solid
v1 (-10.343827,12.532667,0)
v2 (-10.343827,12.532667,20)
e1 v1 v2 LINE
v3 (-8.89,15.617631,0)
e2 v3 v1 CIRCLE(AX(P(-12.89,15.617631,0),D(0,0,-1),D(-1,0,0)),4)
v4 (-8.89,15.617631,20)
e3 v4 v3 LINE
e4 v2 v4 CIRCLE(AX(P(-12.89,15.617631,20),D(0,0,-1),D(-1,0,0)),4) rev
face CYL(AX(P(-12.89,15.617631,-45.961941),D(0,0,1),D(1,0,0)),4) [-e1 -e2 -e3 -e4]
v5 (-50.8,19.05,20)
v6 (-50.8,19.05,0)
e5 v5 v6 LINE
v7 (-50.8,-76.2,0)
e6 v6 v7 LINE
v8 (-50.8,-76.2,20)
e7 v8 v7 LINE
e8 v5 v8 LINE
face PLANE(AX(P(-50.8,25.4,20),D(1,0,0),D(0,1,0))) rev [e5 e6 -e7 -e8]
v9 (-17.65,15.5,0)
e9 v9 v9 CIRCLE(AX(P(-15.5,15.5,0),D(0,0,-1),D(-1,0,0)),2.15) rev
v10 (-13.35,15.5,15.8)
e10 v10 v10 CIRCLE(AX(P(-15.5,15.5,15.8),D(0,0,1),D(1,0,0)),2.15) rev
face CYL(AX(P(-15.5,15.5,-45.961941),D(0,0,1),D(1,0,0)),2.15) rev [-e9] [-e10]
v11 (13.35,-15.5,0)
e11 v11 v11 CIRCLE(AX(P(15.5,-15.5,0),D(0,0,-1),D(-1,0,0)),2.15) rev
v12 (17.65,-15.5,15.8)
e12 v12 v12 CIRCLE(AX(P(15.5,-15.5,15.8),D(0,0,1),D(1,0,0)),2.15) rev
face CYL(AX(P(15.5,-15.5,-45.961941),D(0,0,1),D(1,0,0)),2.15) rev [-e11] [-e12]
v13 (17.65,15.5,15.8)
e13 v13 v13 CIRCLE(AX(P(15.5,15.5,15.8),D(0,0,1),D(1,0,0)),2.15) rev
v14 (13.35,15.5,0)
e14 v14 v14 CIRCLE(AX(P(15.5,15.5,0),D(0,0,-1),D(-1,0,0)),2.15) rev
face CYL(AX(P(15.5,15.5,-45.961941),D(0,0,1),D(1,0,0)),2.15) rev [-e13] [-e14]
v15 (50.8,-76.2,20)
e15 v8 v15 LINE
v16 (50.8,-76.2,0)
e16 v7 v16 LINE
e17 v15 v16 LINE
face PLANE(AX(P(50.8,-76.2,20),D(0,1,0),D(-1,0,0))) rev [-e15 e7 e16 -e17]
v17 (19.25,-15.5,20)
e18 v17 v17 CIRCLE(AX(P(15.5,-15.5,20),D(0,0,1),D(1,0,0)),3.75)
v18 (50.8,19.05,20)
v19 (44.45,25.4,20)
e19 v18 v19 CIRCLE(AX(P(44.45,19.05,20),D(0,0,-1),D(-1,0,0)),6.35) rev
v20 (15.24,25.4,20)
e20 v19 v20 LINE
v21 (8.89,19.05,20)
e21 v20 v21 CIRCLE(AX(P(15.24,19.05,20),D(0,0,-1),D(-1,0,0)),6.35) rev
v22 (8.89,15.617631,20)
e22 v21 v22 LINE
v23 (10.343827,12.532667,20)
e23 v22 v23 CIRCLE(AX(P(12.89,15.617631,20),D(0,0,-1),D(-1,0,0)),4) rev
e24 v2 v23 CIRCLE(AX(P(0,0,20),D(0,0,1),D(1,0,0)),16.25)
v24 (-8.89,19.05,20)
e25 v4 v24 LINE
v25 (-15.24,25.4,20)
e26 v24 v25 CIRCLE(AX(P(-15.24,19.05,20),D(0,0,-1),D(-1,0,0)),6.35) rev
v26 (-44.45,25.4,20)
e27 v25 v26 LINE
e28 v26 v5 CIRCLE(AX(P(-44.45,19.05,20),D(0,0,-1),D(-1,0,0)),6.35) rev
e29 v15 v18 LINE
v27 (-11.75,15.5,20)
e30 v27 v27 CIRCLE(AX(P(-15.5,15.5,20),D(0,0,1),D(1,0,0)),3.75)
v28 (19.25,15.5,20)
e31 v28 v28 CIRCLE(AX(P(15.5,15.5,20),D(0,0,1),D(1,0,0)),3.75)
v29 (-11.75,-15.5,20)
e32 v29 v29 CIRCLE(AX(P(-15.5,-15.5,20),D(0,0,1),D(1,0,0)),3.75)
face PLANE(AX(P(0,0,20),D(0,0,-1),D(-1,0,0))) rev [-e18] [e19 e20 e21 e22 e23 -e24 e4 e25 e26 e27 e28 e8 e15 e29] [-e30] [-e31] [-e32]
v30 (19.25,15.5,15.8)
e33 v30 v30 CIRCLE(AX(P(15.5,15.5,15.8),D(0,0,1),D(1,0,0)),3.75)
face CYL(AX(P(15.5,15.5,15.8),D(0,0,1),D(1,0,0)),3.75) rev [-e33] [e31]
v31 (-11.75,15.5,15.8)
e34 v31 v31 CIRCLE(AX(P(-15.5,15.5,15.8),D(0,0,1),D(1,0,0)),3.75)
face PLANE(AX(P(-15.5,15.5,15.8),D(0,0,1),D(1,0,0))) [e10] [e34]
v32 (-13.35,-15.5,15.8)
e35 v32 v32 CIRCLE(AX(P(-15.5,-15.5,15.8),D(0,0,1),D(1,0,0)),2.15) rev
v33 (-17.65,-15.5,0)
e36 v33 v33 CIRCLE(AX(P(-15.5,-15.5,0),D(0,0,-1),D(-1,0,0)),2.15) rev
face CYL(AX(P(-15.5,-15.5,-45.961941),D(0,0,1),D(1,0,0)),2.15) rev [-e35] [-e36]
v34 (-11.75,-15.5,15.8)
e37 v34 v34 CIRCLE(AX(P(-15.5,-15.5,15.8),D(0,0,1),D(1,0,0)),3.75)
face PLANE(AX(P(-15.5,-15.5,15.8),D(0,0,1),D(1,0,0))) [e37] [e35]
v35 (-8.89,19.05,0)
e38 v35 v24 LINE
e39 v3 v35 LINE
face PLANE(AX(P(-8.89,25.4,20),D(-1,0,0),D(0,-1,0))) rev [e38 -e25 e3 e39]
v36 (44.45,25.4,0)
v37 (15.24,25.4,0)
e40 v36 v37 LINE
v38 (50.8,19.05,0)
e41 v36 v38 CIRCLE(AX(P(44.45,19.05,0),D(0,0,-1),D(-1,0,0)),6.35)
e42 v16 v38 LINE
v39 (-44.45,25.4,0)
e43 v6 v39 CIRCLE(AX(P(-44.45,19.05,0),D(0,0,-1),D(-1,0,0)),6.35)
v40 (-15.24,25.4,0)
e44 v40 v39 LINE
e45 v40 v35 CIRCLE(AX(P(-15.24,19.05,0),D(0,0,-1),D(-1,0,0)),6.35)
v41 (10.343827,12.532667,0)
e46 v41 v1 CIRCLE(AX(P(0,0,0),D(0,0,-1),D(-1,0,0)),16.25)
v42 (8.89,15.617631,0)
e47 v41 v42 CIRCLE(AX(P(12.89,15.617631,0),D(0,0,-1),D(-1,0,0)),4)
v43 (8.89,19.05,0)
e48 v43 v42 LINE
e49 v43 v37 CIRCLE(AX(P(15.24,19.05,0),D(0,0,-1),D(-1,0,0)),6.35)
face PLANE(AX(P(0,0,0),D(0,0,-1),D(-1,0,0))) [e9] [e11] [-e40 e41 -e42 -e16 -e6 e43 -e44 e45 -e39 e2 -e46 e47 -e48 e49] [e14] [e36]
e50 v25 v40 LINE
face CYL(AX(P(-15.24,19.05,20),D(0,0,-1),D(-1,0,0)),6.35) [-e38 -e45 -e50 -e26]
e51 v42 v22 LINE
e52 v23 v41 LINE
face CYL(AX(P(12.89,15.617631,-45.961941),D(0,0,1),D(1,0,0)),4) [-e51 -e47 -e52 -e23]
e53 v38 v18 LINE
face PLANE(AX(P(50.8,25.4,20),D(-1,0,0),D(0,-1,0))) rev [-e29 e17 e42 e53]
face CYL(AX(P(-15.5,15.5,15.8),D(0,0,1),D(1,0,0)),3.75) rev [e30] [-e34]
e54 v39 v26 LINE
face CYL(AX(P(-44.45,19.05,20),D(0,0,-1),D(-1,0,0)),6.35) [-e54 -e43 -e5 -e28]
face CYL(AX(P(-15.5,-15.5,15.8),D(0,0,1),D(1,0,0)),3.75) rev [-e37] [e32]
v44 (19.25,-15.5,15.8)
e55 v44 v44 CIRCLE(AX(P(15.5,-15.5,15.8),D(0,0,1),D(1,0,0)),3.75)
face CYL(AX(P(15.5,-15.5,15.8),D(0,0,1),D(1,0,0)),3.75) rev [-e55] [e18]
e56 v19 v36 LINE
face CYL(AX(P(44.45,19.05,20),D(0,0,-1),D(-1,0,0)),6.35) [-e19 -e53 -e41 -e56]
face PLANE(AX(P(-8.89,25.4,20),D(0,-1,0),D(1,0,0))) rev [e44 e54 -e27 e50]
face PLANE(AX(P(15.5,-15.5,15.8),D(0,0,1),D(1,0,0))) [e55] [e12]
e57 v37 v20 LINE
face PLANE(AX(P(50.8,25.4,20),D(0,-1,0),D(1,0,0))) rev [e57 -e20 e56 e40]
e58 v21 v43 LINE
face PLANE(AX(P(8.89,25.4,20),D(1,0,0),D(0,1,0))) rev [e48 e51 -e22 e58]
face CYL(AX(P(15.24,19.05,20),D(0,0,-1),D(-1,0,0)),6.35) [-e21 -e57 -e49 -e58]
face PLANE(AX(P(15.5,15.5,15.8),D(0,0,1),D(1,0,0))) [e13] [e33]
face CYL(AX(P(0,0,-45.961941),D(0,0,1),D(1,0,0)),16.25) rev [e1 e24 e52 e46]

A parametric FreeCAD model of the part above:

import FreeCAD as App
import Part
import Sketcher


def edges_at(feature, points):
    """Names of the edges that pass closest to the given points."""
    edges = feature.Shape.Edges
    near = lambda p: min(range(len(edges)), key=lambda i: edges[i].distToShape(Part.Vertex(*p))[0])
    return sorted({f"Edge{near(p) + 1}" for p in points})

doc = App.newDocument("Part")
body = doc.addObject("PartDesign::Body", "Body")

# Sketch on XY plane
sketch1 = body.newObject("Sketcher::SketchObject", "Sketch")
sketch1.AttachmentSupport = (doc.getObject("XY_Plane"), [""])
sketch1.MapMode = "FlatFace"
sketch1.addGeometry(Part.LineSegment(App.Vector(51, 25, 0), App.Vector(9, 25, 0)), False)
sketch1.addGeometry(Part.LineSegment(App.Vector(9, 25, 0), App.Vector(9, 13, 0)), False)
sketch1.addGeometry(Part.LineSegment(App.Vector(9, 13, 0), App.Vector(-9, 13, 0)), False)
sketch1.addGeometry(Part.LineSegment(App.Vector(-9, 13, 0), App.Vector(-9, 25, 0)), False)
sketch1.addGeometry(Part.LineSegment(App.Vector(-9, 25, 0), App.Vector(-51, 25, 0)), False)
sketch1.addGeometry(Part.LineSegment(App.Vector(-51, 25, 0), App.Vector(-51, -76, 0)), False)
sketch1.addGeometry(Part.LineSegment(App.Vector(-51, -76, 0), App.Vector(51, -76, 0)), False)
sketch1.addGeometry(Part.LineSegment(App.Vector(51, -76, 0), App.Vector(51, 25, 0)), False)
sketch1.addConstraint(Sketcher.Constraint("Coincident", 0, 2, 1, 1))
sketch1.addConstraint(Sketcher.Constraint("Coincident", 1, 2, 2, 1))
sketch1.addConstraint(Sketcher.Constraint("Coincident", 2, 2, 3, 1))
sketch1.addConstraint(Sketcher.Constraint("Coincident", 3, 2, 4, 1))
sketch1.addConstraint(Sketcher.Constraint("Coincident", 4, 2, 5, 1))
sketch1.addConstraint(Sketcher.Constraint("Coincident", 5, 2, 6, 1))
sketch1.addConstraint(Sketcher.Constraint("Coincident", 6, 2, 7, 1))
sketch1.addConstraint(Sketcher.Constraint("Coincident", 7, 2, 0, 1))
sketch1.addConstraint(Sketcher.Constraint("Horizontal", 0))
sketch1.addConstraint(Sketcher.Constraint("Vertical", 1))
sketch1.addConstraint(Sketcher.Constraint("Horizontal", 2))
sketch1.addConstraint(Sketcher.Constraint("Vertical", 3))
sketch1.addConstraint(Sketcher.Constraint("Horizontal", 4))
sketch1.addConstraint(Sketcher.Constraint("Vertical", 5))
sketch1.addConstraint(Sketcher.Constraint("Horizontal", 6))
sketch1.addConstraint(Sketcher.Constraint("Vertical", 7))
sketch1.addConstraint(Sketcher.Constraint("Symmetric", 0, 2, 3, 2, -2))
sketch1.addConstraint(Sketcher.Constraint("Equal", 0, 4))
sketch1.addConstraint(Sketcher.Constraint("Equal", 6, 5))
sketch1.addConstraint(Sketcher.Constraint("DistanceX", 6, 1, 6, 2, 101.6))
sketch1.addConstraint(Sketcher.Constraint("DistanceX", 0, 2, 0, 1, 41.91))
sketch1.addConstraint(Sketcher.Constraint("DistanceY", -1, 1, 0, 2, 25.4))
sketch1.addConstraint(Sketcher.Constraint("DistanceY", 1, 2, 1, 1, 12.097072))
pad1 = body.newObject("PartDesign::Pad", "Pad")
pad1.Profile = sketch1
pad1.Length = 20

# Sketch on XY plane
sketch2 = body.newObject("Sketcher::SketchObject", "Sketch001")
sketch2.AttachmentSupport = (doc.getObject("XY_Plane"), [""])
sketch2.MapMode = "FlatFace"
sketch2.AttachmentOffset = App.Placement(App.Vector(0, 0, 20), App.Rotation())
sketch2.addGeometry(Part.Circle(App.Vector(0, 0, 0), App.Vector(0, 0, 1), 16.2), False)
sketch2.addGeometry(Part.Circle(App.Vector(-15.5, -15.5, 0), App.Vector(0, 0, 1), 2.1), False)
sketch2.addGeometry(Part.Circle(App.Vector(-15.5, 15.5, 0), App.Vector(0, 0, 1), 2.1), False)
sketch2.addGeometry(Part.Circle(App.Vector(15.5, -15.5, 0), App.Vector(0, 0, 1), 2.1), False)
sketch2.addGeometry(Part.Circle(App.Vector(15.5, 15.5, 0), App.Vector(0, 0, 1), 2.1), False)
sketch2.addConstraint(Sketcher.Constraint("Coincident", 0, 3, -1, 1))
sketch2.addConstraint(Sketcher.Constraint("Equal", 1, 2))
sketch2.addConstraint(Sketcher.Constraint("Equal", 2, 3))
sketch2.addConstraint(Sketcher.Constraint("Equal", 3, 4))
sketch2.addConstraint(Sketcher.Constraint("Symmetric", 2, 3, 3, 3, -1, 1))
sketch2.addConstraint(Sketcher.Constraint("Symmetric", 1, 3, 4, 3, -1, 1))
sketch2.addConstraint(Sketcher.Constraint("Symmetric", 1, 3, 3, 3, -2))
sketch2.addConstraint(Sketcher.Constraint("Diameter", 0, 32.5))
sketch2.addConstraint(Sketcher.Constraint("Diameter", 1, 4.3))
sketch2.addConstraint(Sketcher.Constraint("DistanceY", 1, 3, 2, 3, 31.0))
sketch2.addConstraint(Sketcher.Constraint("DistanceX", 1, 3, 3, 3, 31.0))
pocket1 = body.newObject("PartDesign::Pocket", "Pocket")
pocket1.Profile = sketch2
pocket1.Length = 20

# Sketch on XY plane
sketch3 = body.newObject("Sketcher::SketchObject", "Sketch002")
sketch3.AttachmentSupport = (doc.getObject("XY_Plane"), [""])
sketch3.MapMode = "FlatFace"
sketch3.AttachmentOffset = App.Placement(App.Vector(0, 0, 20), App.Rotation())
sketch3.addGeometry(Part.Circle(App.Vector(-15.5, 15.5, 0), App.Vector(0, 0, 1), 3.8), False)
sketch3.addGeometry(Part.Circle(App.Vector(15.5, 15.5, 0), App.Vector(0, 0, 1), 3.8), False)
sketch3.addGeometry(Part.Circle(App.Vector(15.5, -15.5, 0), App.Vector(0, 0, 1), 3.8), False)
sketch3.addGeometry(Part.Circle(App.Vector(-15.5, -15.5, 0), App.Vector(0, 0, 1), 3.8), False)
sketch3.addConstraint(Sketcher.Constraint("Equal", 0, 1))
sketch3.addConstraint(Sketcher.Constraint("Equal", 1, 2))
sketch3.addConstraint(Sketcher.Constraint("Equal", 2, 3))
sketch3.addConstraint(Sketcher.Constraint("Symmetric", 0, 3, 2, 3, -1, 1))
sketch3.addConstraint(Sketcher.Constraint("Symmetric", 1, 3, 3, 3, -1, 1))
sketch3.addConstraint(Sketcher.Constraint("Symmetric", 0, 3, 1, 3, -2))
sketch3.addConstraint(Sketcher.Constraint("Diameter", 0, 7.5))
sketch3.addConstraint(Sketcher.Constraint("DistanceX", 0, 3, 1, 3, 31.0))
sketch3.addConstraint(Sketcher.Constraint("DistanceY", 2, 3, 1, 3, 31.0))
pocket2 = body.newObject("PartDesign::Pocket", "Pocket001")
pocket2.Profile = sketch3
pocket2.Length = 4.2
doc.recompute()

fillet = body.newObject("PartDesign::Fillet", "Fillet")
fillet.Base = (pocket2, edges_at(pocket2, [(8.89, 13.603, 10), (-8.89, 13.603, 10)]))
fillet.Radius = 4
doc.recompute()

fillet2 = body.newObject("PartDesign::Fillet", "Fillet001")
fillet2.Base = (fillet, edges_at(fillet, [
    (-50.8, 25.4, 10),
    (-8.89, 25.4, 10),
    (8.89, 25.4, 10),
    (50.8, 25.4, 10),
]))
fillet2.Radius = 6.35

doc.recompute()
